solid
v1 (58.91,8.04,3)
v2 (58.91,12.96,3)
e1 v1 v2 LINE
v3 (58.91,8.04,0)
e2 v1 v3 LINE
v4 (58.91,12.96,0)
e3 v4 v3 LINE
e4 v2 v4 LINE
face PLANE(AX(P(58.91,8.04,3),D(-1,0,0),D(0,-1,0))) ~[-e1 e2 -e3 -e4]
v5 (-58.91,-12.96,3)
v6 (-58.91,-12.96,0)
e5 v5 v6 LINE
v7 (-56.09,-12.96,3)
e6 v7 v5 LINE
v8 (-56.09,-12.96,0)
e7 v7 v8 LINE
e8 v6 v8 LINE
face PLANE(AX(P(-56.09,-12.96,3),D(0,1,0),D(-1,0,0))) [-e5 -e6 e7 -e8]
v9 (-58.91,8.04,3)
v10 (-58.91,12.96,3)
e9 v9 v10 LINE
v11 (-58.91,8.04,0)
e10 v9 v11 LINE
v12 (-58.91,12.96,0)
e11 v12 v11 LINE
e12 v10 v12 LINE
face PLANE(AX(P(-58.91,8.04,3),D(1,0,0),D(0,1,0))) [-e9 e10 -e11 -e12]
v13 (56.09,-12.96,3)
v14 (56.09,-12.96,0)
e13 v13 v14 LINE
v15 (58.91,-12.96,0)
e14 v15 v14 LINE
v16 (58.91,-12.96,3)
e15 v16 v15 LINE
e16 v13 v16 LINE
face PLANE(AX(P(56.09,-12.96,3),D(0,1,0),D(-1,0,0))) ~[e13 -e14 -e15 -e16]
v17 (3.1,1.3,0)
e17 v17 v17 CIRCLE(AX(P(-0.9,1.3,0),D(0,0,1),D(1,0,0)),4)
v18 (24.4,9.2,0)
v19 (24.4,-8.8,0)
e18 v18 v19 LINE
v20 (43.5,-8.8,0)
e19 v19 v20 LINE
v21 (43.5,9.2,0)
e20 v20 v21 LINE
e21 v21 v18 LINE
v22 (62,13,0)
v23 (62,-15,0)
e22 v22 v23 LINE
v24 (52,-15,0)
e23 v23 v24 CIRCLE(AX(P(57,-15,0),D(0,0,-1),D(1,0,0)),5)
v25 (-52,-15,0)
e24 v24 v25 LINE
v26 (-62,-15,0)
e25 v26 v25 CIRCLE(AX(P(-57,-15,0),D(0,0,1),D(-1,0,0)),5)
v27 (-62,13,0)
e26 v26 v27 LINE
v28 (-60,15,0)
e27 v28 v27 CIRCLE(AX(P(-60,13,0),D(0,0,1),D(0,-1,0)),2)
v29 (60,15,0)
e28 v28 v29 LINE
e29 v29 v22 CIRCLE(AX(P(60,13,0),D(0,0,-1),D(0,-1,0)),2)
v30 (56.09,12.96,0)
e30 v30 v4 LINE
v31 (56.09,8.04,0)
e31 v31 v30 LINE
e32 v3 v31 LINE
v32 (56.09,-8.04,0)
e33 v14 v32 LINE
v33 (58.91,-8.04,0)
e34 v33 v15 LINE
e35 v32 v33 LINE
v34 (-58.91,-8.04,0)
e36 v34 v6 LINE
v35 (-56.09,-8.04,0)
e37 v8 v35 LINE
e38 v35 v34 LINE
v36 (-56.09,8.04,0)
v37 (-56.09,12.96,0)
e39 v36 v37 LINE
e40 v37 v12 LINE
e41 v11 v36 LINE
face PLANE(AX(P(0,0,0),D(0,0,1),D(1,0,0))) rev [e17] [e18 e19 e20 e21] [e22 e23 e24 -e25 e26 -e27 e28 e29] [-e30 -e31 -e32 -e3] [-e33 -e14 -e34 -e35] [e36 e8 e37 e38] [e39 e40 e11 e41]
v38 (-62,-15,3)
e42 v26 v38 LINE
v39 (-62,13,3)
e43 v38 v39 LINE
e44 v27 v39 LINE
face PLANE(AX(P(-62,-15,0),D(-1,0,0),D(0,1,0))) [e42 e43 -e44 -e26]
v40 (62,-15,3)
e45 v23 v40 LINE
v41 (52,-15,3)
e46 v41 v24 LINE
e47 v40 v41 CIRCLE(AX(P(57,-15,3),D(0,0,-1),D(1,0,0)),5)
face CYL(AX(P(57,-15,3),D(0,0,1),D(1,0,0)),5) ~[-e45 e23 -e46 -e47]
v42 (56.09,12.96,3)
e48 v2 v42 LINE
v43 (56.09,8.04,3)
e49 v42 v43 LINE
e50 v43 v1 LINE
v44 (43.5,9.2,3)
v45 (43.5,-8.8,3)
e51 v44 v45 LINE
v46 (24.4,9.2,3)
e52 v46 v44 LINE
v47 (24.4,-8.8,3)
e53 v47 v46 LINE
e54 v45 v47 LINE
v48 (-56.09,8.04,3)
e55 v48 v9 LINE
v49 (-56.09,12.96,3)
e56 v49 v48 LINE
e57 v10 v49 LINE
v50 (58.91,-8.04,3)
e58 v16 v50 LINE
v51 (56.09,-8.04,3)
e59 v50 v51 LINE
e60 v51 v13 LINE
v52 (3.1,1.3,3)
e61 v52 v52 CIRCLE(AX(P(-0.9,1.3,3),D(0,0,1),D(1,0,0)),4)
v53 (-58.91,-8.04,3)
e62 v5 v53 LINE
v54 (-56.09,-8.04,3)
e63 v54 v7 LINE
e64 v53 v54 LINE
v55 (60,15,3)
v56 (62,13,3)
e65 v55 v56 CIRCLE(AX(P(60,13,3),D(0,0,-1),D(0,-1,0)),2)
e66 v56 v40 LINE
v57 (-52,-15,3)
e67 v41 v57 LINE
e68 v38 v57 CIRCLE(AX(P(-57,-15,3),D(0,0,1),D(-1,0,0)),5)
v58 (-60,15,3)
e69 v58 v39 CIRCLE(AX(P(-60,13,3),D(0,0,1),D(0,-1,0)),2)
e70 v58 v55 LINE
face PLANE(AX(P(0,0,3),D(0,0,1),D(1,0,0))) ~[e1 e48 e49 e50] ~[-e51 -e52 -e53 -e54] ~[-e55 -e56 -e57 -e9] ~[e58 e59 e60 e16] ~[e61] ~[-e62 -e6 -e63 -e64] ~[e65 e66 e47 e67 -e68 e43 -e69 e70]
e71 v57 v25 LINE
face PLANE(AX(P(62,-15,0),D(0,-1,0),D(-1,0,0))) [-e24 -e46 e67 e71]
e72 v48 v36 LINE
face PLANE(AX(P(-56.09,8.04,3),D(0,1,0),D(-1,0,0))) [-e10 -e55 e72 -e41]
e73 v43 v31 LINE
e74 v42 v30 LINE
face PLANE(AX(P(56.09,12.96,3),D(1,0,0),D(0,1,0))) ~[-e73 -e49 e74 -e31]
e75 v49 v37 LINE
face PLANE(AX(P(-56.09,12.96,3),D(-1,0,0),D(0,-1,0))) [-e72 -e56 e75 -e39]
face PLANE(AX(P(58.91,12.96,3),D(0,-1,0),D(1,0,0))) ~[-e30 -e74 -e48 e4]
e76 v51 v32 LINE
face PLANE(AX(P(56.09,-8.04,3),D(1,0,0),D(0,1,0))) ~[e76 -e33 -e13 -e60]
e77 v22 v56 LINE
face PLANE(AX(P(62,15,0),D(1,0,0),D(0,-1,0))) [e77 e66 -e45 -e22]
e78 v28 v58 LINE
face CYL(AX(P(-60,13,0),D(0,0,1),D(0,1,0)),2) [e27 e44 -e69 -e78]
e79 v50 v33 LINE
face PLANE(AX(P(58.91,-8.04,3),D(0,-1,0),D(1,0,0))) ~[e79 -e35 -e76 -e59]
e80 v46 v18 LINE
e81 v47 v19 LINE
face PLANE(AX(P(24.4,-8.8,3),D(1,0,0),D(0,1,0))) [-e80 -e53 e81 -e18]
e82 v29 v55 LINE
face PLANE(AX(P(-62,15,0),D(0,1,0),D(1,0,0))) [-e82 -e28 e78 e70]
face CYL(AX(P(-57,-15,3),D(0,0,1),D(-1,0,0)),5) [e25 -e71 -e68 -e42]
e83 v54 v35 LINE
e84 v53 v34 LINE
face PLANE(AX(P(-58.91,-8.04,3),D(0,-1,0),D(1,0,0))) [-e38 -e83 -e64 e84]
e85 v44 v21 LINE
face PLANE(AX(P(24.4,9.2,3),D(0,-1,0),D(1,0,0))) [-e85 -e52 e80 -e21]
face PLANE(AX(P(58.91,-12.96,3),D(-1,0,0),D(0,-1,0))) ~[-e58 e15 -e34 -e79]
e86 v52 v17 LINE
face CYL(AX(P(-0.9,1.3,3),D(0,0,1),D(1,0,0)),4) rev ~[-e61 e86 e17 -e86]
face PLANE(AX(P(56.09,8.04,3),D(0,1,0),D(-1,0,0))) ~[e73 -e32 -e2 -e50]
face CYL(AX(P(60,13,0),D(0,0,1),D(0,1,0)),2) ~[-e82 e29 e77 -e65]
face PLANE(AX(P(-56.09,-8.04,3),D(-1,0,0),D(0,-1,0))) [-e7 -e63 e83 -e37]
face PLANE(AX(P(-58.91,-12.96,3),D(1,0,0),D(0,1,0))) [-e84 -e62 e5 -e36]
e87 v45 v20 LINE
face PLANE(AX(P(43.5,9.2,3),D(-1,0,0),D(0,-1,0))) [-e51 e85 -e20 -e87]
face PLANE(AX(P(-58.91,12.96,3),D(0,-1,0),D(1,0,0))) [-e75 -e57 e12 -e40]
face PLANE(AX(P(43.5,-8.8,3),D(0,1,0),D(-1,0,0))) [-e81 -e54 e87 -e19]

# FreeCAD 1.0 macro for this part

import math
import FreeCAD as App
import Part
import Sketcher
from FreeCAD import Vector


def edges_at(feature, points):
    """Names of the edges that pass closest to the given points."""
    edges = feature.Shape.Edges
    near = lambda p: min(range(len(edges)), key=lambda i: edges[i].distToShape(Part.Vertex(*p))[0])
    return sorted({f"Edge{near(p) + 1}" for p in points})


def add_polygon(sketch, points):
    """Adds a closed chain of lines whose ends are joined by coincident constraints."""
    first, n = sketch.GeometryCount, len(points)
    for a, b in zip(points, points[1:] + points[:1]):
        sketch.addGeometry(Part.LineSegment(App.Vector(*a, 0), App.Vector(*b, 0)), False)
    for i in range(n):
        sketch.addConstraint(Sketcher.Constraint("Coincident", first + i, 2, first + (i + 1) % n, 1))

doc = App.newDocument("Part")
body = doc.addObject("PartDesign::Body", "Body")

# Sketch on XY plane
sketch1 = body.newObject("Sketcher::SketchObject", "Sketch")
sketch1.AttachmentSupport = (doc.getObject("XY_Plane"), [""])
sketch1.MapMode = "FlatFace"
add_polygon(sketch1, [(62, 15), (-62, 15), (-62, -15), (62, -15)])  # lines 0-3
sketch1.addConstraint([
    Sketcher.Constraint("Horizontal", 0),
    Sketcher.Constraint("Vertical", 1),
    Sketcher.Constraint("Horizontal", 2),
    Sketcher.Constraint("Vertical", 3),
    Sketcher.Constraint("Symmetric", 0, 2, 2, 2, -1, 1),
    Sketcher.Constraint("DistanceX", 0, 2, 0, 1, 124.0),
    Sketcher.Constraint("DistanceY", 1, 2, 1, 1, 30.0),
])
pad1 = body.newObject("PartDesign::Pad", "Pad")
pad1.Profile = sketch1
pad1.Length = 3

# Sketch on XY plane
sketch2 = body.newObject("Sketcher::SketchObject", "Sketch001")
sketch2.AttachmentSupport = (doc.getObject("XY_Plane"), [""])
sketch2.MapMode = "FlatFace"
sketch2.AttachmentOffset = App.Placement(Vector(0, 0, 3), App.Rotation())
sketch2.addGeometry([
    Part.LineSegment(Vector(-52, -15, 0), Vector(-62, -15, 0)),
    Part.ArcOfCircle(Part.Circle(Vector(-57, -15, 0), Vector(0, 0, 1), 5), math.radians(180), math.radians(360)),
], False)
sketch2.addConstraint([
    Sketcher.Constraint("Coincident", 0, 1, 1, 2),
    Sketcher.Constraint("Coincident", 1, 1, 0, 2),
    Sketcher.Constraint("Horizontal", 0),
    Sketcher.Constraint("Horizontal", 1, 3, 0, 1),
    Sketcher.Constraint("Radius", 1, 5.0),
    Sketcher.Constraint("DistanceX", 1, 3, -1, 1, 57.0),
    Sketcher.Constraint("DistanceY", 1, 3, -1, 1, 15.0),
])
pad2 = body.newObject("PartDesign::Pad", "Pad001")
pad2.Profile = sketch2
pad2.Length = 3
pad2.Reversed = True
doc.recompute()

mirrored = body.newObject("PartDesign::Mirrored", "Mirrored")
mirrored.Originals = [pad2]
mirrored.MirrorPlane = (doc.getObject("YZ_Plane"), [""])
body.Tip = mirrored
doc.recompute()

fillet = body.newObject("PartDesign::Fillet", "Fillet")
fillet.Base = (mirrored, edges_at(mirrored, [(-62, 15, 1.5)]))
fillet.Radius = 2
doc.recompute()

fillet2 = body.newObject("PartDesign::Fillet", "Fillet001")
fillet2.Base = (fillet, edges_at(fillet, [(62, 15, 1.5)]))
fillet2.Radius = 2

# Sketch on XY plane
sketch3 = body.newObject("Sketcher::SketchObject", "Sketch002")
sketch3.AttachmentSupport = (doc.getObject("XY_Plane"), [""])
sketch3.MapMode = "FlatFace"
sketch3.AttachmentOffset = App.Placement(Vector(0, 0, 3), App.Rotation())
add_polygon(sketch3, [(-56.09, 12.96), (-58.91, 12.96), (-58.91, 8.04), (-56.09, 8.04)])  # lines 0-3
add_polygon(sketch3, [(-56.09, -8.04), (-58.91, -8.04), (-58.91, -12.96), (-56.09, -12.96)])  # lines 4-7
sketch3.addConstraint([
    Sketcher.Constraint("Horizontal", 0),
    Sketcher.Constraint("Vertical", 1),
    Sketcher.Constraint("Horizontal", 2),
    Sketcher.Constraint("Vertical", 3),
    Sketcher.Constraint("Horizontal", 4),
    Sketcher.Constraint("Vertical", 5),
    Sketcher.Constraint("Horizontal", 6),
    Sketcher.Constraint("Vertical", 7),
    Sketcher.Constraint("Symmetric", 1, 2, 4, 2, -1),
    Sketcher.Constraint("Symmetric", 3, 2, 6, 2, -1),
    Sketcher.Constraint("DistanceX", 0, 2, 0, 1, 2.82),
    Sketcher.Constraint("DistanceY", 1, 2, 1, 1, 4.92),
    Sketcher.Constraint("DistanceY", 4, 2, 0, 2, 21.0),
    Sketcher.Constraint("DistanceX", 0, 2, -1, 1, 58.91),
])
pocket1 = body.newObject("PartDesign::Pocket", "Pocket")
pocket1.Profile = sketch3
pocket1.Type = "ThroughAll"
doc.recompute()

mirrored2 = body.newObject("PartDesign::Mirrored", "Mirrored001")
mirrored2.Originals = [pocket1]
mirrored2.MirrorPlane = (doc.getObject("YZ_Plane"), [""])
body.Tip = mirrored2

# Sketch on XY plane
sketch4 = body.newObject("Sketcher::SketchObject", "Sketch003")
sketch4.AttachmentSupport = (doc.getObject("XY_Plane"), [""])
sketch4.MapMode = "FlatFace"
sketch4.AttachmentOffset = App.Placement(Vector(0, 0, 3), App.Rotation())
add_polygon(sketch4, [(43.5, 9.2), (24.4, 9.2), (24.4, -8.8), (43.5, -8.8)])  # lines 0-3
sketch4.addGeometry(Part.Circle(Vector(-0.9, 1.3, 0), Vector(0, 0, 1), 4), False)  # 4
sketch4.addConstraint([
    Sketcher.Constraint("Horizontal", 0),
    Sketcher.Constraint("Vertical", 1),
    Sketcher.Constraint("Horizontal", 2),
    Sketcher.Constraint("Vertical", 3),
    Sketcher.Constraint("Diameter", 4, 8.0),
    Sketcher.Constraint("DistanceY", 1, 2, 1, 1, 18.0),
    Sketcher.Constraint("DistanceX", 0, 2, 0, 1, 19.1),
    Sketcher.Constraint("DistanceX", 4, 3, -1, 1, 0.9),
    Sketcher.Constraint("DistanceY", -1, 1, 4, 3, 1.3),
    Sketcher.Constraint("DistanceX", -1, 1, 0, 2, 24.4),
    Sketcher.Constraint("DistanceY", -1, 1, 0, 2, 9.2),
])
pocket2 = body.newObject("PartDesign::Pocket", "Pocket001")
pocket2.Profile = sketch4
pocket2.Type = "ThroughAll"

doc.recompute()
